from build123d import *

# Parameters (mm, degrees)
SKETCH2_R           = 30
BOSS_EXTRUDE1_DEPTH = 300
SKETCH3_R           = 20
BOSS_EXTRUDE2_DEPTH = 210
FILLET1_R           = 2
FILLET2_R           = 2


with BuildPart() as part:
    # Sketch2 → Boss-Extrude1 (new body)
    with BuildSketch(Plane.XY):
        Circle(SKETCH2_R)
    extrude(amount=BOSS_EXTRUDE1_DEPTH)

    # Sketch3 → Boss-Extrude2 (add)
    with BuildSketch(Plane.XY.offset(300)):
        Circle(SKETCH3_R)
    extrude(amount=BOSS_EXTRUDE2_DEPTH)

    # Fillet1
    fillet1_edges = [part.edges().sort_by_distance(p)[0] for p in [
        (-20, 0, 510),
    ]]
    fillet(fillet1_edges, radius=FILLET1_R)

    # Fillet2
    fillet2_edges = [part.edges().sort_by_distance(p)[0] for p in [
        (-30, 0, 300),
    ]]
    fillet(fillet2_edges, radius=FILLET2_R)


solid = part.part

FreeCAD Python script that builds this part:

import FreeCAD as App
import Part
import Sketcher
Q = App.Units.Quantity


def edges_at(feature, points):
    """Names of the edges that pass closest to the given points."""
    edges = feature.Shape.Edges
    near = lambda p: min(range(len(edges)), key=lambda i: edges[i].distToShape(Part.Vertex(*p))[0])
    return sorted({f"Edge{near(p) + 1}" for p in points})

doc = App.newDocument("Part")
params = doc.addObject("Spreadsheet::Sheet", "Params")
for row, (alias, value) in enumerate([
    ("sketch1_diameter", "60 mm"),
    ("pad1_length", "300 mm"),
    ("sketch2_diameter", "40 mm"),
    ("pad2_length", "210 mm"),
    ("fillet_radius", "2 mm"),
    ("fillet2_radius", "2 mm"),
], start=1):
    params.set(f"A{row}", alias)
    params.set(f"B{row}", "=" + value)
    params.setAlias(f"B{row}", alias)

body = doc.addObject("PartDesign::Body", "Body")

# Sketch on XY plane
sketch1 = body.newObject("Sketcher::SketchObject", "Sketch")
sketch1.AttachmentSupport = (doc.getObject("XY_Plane"), [""])
sketch1.MapMode = "FlatFace"
sketch1.addGeometry(Part.Circle(App.Vector(0, 0, 0), App.Vector(0, 0, 1), 30), False)
sketch1.addConstraint([
    Sketcher.Constraint("Coincident", 0, 3, -1, 1),
    Sketcher.Constraint("Diameter", 0, Q("60 mm")),
])
sketch1.setExpression("Constraints[1]", "Params.sketch1_diameter")
pad1 = body.newObject("PartDesign::Pad", "Pad")
pad1.Profile = sketch1
pad1.setExpression("Length", "Params.pad1_length")

# Sketch on XY plane
sketch2 = body.newObject("Sketcher::SketchObject", "Sketch001")
sketch2.AttachmentSupport = (doc.getObject("XY_Plane"), [""])
sketch2.MapMode = "FlatFace"
sketch2.AttachmentOffset = App.Placement(App.Vector(0, 0, 300), App.Rotation())
sketch2.addGeometry(Part.Circle(App.Vector(0, 0, 0), App.Vector(0, 0, 1), 20), False)
sketch2.addConstraint([
    Sketcher.Constraint("Coincident", 0, 3, -1, 1),
    Sketcher.Constraint("Diameter", 0, Q("40 mm")),
])
sketch2.setExpression("Constraints[1]", "Params.sketch2_diameter")
pad2 = body.newObject("PartDesign::Pad", "Pad001")
pad2.Profile = sketch2
pad2.setExpression("Length", "Params.pad2_length")
doc.recompute()

fillet = body.newObject("PartDesign::Fillet", "Fillet")
fillet.Base = (pad2, edges_at(pad2, [(-20, 0, 510)]))
fillet.setExpression("Radius", "Params.fillet_radius")
doc.recompute()

fillet2 = body.newObject("PartDesign::Fillet", "Fillet001")
fillet2.Base = (fillet, edges_at(fillet, [(-30, 0, 300)]))
fillet2.setExpression("Radius", "Params.fillet2_radius")

doc.recompute()
